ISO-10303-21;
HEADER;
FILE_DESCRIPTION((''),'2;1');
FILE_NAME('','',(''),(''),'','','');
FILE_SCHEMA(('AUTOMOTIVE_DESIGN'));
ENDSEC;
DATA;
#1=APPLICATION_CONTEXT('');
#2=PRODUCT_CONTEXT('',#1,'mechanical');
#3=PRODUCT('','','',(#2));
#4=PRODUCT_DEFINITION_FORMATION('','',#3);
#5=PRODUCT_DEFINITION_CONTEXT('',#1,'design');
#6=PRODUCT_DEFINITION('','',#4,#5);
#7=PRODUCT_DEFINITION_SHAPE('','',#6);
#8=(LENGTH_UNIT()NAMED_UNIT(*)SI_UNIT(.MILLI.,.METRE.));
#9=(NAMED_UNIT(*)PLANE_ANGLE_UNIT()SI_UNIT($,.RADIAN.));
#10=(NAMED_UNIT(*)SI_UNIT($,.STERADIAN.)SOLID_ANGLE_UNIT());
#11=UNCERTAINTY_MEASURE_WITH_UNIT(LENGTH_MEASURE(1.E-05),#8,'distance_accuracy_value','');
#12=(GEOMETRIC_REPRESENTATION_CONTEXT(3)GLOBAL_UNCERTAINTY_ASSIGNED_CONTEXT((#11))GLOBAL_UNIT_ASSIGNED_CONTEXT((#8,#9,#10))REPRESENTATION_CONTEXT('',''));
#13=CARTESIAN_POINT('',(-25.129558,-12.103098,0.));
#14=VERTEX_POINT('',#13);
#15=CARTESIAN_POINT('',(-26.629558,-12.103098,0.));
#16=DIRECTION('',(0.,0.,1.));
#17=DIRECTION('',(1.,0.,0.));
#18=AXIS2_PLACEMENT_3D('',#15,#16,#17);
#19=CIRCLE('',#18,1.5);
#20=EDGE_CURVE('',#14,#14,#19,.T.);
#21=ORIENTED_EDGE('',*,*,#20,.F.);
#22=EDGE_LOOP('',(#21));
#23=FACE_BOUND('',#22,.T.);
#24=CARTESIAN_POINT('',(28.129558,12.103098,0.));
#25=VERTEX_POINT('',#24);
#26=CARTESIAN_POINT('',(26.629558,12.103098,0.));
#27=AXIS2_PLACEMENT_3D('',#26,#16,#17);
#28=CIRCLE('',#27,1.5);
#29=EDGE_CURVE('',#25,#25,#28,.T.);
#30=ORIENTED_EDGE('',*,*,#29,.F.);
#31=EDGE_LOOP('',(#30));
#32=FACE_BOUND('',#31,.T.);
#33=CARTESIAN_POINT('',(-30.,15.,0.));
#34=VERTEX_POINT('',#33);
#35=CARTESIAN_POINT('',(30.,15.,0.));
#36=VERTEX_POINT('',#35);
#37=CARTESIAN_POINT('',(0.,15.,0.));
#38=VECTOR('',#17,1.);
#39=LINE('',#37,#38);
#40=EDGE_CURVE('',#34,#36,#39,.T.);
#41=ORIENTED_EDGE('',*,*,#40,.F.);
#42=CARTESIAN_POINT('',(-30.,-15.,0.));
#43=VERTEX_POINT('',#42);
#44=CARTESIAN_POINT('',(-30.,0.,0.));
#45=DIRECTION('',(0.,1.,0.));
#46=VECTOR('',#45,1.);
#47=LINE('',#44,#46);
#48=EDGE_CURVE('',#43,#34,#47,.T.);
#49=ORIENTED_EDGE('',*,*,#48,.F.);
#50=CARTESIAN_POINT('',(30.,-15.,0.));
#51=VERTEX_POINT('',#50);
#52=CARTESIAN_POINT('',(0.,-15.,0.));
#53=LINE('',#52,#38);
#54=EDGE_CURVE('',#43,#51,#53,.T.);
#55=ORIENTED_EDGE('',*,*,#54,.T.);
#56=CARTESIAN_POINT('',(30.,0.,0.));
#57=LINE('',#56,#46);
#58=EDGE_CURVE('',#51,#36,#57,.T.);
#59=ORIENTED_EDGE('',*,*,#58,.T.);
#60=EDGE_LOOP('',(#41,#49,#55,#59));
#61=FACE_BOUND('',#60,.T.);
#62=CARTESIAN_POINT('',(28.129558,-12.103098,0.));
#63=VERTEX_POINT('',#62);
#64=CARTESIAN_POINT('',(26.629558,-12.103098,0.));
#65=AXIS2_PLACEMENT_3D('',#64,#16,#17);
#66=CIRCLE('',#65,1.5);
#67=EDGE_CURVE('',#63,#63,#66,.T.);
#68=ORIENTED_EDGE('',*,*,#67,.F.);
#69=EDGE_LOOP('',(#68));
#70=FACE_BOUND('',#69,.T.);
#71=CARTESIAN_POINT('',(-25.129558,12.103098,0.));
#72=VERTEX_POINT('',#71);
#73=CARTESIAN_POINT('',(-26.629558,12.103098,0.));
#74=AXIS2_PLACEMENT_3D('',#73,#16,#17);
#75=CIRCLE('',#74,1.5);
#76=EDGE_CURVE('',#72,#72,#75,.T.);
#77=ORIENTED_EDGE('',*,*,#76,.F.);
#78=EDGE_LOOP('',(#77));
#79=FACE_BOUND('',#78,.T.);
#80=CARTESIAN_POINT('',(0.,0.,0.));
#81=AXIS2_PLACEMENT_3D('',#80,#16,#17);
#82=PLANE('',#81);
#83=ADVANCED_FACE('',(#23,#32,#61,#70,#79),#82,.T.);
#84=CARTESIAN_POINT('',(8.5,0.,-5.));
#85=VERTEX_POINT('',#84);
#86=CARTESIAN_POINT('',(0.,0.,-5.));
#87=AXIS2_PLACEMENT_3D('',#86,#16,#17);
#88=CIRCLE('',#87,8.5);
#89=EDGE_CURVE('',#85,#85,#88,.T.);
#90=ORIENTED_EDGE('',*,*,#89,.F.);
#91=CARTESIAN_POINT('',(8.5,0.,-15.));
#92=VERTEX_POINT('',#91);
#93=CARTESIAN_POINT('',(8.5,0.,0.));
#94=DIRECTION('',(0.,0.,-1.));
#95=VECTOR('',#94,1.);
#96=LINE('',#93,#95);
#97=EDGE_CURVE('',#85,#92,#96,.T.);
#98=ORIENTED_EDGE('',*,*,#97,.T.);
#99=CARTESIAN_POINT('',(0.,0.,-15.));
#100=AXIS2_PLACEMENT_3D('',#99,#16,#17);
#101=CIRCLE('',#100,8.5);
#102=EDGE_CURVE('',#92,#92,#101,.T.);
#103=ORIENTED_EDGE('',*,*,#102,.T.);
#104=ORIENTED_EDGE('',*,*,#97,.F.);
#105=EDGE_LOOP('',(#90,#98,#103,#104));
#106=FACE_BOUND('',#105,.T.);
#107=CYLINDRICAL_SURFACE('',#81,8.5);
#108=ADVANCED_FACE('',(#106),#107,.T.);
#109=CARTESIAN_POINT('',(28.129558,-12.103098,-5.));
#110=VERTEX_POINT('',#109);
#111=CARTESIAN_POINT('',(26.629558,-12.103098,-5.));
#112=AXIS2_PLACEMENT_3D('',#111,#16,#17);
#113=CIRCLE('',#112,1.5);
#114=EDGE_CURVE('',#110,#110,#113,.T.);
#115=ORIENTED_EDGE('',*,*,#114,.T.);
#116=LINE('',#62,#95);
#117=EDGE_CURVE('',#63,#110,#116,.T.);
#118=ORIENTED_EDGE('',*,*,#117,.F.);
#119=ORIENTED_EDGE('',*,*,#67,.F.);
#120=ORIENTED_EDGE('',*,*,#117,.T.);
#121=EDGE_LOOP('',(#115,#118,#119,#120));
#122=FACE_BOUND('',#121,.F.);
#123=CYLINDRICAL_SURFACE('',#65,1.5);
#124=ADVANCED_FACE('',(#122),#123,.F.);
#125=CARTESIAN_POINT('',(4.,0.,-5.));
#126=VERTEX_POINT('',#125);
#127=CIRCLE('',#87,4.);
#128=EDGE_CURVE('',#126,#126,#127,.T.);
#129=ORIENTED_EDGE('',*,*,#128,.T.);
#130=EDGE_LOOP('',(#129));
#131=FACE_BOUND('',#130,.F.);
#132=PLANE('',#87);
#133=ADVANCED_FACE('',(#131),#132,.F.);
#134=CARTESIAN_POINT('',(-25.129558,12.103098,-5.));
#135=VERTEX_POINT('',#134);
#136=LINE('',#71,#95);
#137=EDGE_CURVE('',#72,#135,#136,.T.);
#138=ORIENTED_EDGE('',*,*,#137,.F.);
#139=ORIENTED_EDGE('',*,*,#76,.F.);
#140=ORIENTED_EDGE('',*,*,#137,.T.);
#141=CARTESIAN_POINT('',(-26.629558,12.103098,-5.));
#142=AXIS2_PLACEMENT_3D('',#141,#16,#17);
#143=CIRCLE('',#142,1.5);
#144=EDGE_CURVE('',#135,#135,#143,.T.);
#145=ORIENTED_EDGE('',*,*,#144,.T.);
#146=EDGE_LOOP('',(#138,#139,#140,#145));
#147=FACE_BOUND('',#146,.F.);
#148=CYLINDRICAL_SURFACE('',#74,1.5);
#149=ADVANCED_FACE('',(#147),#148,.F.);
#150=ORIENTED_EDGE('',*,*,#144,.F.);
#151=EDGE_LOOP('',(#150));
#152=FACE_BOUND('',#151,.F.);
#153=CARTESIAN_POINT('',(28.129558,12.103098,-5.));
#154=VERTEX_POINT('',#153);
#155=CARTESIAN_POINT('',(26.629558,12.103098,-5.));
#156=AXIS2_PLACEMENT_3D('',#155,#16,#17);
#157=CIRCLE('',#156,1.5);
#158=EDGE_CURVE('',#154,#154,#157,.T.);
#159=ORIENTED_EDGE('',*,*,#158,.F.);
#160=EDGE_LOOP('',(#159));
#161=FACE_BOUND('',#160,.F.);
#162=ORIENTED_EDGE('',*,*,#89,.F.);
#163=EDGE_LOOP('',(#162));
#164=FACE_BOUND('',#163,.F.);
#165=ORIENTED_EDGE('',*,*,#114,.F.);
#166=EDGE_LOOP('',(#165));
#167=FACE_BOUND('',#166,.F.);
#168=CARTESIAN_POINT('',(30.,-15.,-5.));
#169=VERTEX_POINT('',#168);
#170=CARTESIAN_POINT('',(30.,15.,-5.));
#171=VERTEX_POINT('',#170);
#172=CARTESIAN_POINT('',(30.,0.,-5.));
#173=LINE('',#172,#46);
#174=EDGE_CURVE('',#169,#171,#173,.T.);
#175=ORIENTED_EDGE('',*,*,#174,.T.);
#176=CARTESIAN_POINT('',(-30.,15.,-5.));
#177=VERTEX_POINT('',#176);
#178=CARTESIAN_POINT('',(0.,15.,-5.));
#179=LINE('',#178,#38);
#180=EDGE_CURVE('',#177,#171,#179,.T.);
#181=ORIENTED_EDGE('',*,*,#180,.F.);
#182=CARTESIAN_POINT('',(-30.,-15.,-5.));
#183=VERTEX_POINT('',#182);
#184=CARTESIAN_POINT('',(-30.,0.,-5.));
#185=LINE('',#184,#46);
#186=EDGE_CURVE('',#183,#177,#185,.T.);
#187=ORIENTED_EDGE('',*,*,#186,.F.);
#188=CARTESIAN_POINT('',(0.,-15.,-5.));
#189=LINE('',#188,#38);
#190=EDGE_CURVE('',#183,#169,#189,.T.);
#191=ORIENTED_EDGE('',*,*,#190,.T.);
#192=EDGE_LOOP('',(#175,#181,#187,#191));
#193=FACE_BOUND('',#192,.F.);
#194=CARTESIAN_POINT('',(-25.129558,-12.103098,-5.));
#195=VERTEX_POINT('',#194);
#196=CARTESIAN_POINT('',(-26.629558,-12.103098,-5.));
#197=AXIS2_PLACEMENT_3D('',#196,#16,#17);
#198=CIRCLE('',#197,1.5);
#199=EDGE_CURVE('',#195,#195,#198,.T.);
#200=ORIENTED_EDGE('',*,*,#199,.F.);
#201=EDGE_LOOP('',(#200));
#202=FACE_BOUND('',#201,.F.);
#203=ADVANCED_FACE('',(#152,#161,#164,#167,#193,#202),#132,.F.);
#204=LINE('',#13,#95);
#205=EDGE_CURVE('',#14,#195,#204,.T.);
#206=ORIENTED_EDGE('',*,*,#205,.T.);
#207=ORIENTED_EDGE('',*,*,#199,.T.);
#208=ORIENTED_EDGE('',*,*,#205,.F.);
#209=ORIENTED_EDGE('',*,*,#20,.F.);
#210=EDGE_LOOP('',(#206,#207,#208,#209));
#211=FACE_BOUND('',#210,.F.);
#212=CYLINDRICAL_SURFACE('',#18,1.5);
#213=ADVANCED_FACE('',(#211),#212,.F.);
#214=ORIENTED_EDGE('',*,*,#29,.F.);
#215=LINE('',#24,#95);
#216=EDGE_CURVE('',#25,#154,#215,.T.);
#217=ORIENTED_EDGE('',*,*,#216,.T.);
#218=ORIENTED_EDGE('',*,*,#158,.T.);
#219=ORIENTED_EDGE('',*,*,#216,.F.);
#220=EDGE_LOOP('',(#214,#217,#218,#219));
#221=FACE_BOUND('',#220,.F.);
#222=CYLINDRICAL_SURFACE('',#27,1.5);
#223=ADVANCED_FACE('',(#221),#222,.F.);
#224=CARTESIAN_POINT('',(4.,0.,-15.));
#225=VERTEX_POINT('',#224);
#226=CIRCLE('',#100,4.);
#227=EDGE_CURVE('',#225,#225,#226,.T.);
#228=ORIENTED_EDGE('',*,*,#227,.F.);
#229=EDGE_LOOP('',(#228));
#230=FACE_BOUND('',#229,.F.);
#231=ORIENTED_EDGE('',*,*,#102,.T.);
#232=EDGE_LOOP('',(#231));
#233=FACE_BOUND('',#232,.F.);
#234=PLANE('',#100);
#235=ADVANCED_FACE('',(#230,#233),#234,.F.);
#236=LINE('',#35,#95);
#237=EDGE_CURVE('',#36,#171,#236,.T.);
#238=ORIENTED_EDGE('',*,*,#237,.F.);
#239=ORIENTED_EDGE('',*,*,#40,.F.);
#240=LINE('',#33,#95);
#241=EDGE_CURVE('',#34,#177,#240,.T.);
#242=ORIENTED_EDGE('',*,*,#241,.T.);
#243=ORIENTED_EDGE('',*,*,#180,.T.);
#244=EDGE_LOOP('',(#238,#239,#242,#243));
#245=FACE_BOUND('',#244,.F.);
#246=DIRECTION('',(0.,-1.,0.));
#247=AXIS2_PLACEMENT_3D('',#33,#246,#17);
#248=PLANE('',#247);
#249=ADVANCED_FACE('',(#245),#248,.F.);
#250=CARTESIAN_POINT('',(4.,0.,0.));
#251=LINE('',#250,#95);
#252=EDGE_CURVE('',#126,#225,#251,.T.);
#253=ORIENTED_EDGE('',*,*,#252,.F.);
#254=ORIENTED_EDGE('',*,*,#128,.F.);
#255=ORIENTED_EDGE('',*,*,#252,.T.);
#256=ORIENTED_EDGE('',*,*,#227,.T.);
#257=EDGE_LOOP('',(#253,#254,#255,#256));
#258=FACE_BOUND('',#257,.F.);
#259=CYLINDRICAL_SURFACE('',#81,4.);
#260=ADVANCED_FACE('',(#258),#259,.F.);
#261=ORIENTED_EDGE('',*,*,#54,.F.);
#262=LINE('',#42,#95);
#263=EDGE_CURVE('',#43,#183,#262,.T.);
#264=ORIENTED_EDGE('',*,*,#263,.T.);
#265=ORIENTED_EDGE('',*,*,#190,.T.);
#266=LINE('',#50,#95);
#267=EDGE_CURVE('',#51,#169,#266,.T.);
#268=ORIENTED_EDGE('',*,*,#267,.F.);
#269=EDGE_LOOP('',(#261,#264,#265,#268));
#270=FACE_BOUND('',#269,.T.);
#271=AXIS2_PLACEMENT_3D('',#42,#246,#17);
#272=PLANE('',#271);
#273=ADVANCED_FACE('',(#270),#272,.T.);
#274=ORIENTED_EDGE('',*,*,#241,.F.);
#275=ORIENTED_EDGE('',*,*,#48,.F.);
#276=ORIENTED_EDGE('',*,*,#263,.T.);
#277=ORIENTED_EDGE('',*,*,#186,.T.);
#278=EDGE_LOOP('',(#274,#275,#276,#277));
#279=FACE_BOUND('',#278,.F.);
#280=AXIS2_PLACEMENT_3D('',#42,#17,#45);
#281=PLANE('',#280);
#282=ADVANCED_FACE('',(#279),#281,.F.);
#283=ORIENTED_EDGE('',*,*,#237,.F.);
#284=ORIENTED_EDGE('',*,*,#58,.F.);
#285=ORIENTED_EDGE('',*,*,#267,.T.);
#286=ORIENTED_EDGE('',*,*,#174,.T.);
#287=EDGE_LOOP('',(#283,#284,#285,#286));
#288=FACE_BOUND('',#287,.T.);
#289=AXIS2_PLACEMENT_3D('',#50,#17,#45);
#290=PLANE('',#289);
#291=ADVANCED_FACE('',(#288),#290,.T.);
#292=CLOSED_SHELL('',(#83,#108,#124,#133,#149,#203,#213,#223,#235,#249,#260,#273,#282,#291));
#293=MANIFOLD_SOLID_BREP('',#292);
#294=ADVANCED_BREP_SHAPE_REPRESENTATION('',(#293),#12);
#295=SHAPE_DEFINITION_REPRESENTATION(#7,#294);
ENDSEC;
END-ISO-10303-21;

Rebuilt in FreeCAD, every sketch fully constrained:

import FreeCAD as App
import Part
import Sketcher
from FreeCAD import Vector
Q = App.Units.Quantity

doc = App.newDocument("Part")
body = doc.addObject("PartDesign::Body", "Body")

# Sketch on XY plane
sketch1 = body.newObject("Sketcher::SketchObject", "Sketch")
sketch1.AttachmentSupport = (doc.getObject("XY_Plane"), [""])
sketch1.MapMode = "FlatFace"
sketch1.addGeometry([
    Part.LineSegment(Vector(-30, 15, 0), Vector(-30, -15, 0)),  # 0
    Part.LineSegment(Vector(-30, -15, 0), Vector(30, -15, 0)),  # 1
    Part.LineSegment(Vector(30, -15, 0), Vector(30, 15, 0)),  # 2
    Part.LineSegment(Vector(30, 15, 0), Vector(-30, 15, 0)),  # 3
    Part.Circle(Vector(-26.6, -12.1, 0), Vector(0, 0, 1), 1.5),  # 4
    Part.Circle(Vector(26.6, -12.1, 0), Vector(0, 0, 1), 1.5),  # 5
    Part.Circle(Vector(-26.6, 12.1, 0), Vector(0, 0, 1), 1.5),  # 6
    Part.Circle(Vector(26.6, 12.1, 0), Vector(0, 0, 1), 1.5),  # 7
], False)
sketch1.addConstraint([
    Sketcher.Constraint("Coincident", 0, 2, 1, 1),
    Sketcher.Constraint("Coincident", 1, 2, 2, 1),
    Sketcher.Constraint("Coincident", 2, 2, 3, 1),
    Sketcher.Constraint("Coincident", 3, 2, 0, 1),
    Sketcher.Constraint("Vertical", 0),
    Sketcher.Constraint("Horizontal", 1),
    Sketcher.Constraint("Vertical", 2),
    Sketcher.Constraint("Horizontal", 3),
    Sketcher.Constraint("Equal", 4, 5),
    Sketcher.Constraint("Equal", 5, 6),
    Sketcher.Constraint("Equal", 6, 7),
    Sketcher.Constraint("Symmetric", 5, 3, 6, 3, -1, 1),
    Sketcher.Constraint("Symmetric", 4, 3, 7, 3, -1, 1),
    Sketcher.Constraint("Symmetric", 0, 2, 2, 2, -1, 1),
    Sketcher.Constraint("Symmetric", 4, 3, 5, 3, -2),
    Sketcher.Constraint("Diameter", 4, Q("3 mm")),
    Sketcher.Constraint("DistanceX", 1, 1, 1, 2, Q("60 mm")),
    Sketcher.Constraint("DistanceY", 0, 2, 0, 1, Q("30 mm")),
    Sketcher.Constraint("DistanceX", 0, 2, 5, 3, Q("56.629558 mm")),
    Sketcher.Constraint("DistanceY", 4, 3, -1, 1, Q("12.103098 mm")),
])
pad1 = body.newObject("PartDesign::Pad", "Pad")
pad1.Profile = sketch1
pad1.Length = 5
pad1.Reversed = True

# Sketch on XY plane
sketch2 = body.newObject("Sketcher::SketchObject", "Sketch001")
sketch2.AttachmentSupport = (doc.getObject("XY_Plane"), [""])
sketch2.MapMode = "FlatFace"
sketch2.addGeometry([
    Part.Circle(Vector(0, 0, 0), Vector(0, 0, 1), 8.5),
    Part.Circle(Vector(0, 0, 0), Vector(0, 0, 1), 4),
], False)
sketch2.addConstraint([
    Sketcher.Constraint("Coincident", 0, 3, -1, 1),
    Sketcher.Constraint("Coincident", 1, 3, -1, 1),
    Sketcher.Constraint("Diameter", 0, Q("17 mm")),
    Sketcher.Constraint("Diameter", 1, Q("8 mm")),
])
pad2 = body.newObject("PartDesign::Pad", "Pad001")
pad2.Profile = sketch2
pad2.Length = 15
pad2.Reversed = True

doc.recompute()
